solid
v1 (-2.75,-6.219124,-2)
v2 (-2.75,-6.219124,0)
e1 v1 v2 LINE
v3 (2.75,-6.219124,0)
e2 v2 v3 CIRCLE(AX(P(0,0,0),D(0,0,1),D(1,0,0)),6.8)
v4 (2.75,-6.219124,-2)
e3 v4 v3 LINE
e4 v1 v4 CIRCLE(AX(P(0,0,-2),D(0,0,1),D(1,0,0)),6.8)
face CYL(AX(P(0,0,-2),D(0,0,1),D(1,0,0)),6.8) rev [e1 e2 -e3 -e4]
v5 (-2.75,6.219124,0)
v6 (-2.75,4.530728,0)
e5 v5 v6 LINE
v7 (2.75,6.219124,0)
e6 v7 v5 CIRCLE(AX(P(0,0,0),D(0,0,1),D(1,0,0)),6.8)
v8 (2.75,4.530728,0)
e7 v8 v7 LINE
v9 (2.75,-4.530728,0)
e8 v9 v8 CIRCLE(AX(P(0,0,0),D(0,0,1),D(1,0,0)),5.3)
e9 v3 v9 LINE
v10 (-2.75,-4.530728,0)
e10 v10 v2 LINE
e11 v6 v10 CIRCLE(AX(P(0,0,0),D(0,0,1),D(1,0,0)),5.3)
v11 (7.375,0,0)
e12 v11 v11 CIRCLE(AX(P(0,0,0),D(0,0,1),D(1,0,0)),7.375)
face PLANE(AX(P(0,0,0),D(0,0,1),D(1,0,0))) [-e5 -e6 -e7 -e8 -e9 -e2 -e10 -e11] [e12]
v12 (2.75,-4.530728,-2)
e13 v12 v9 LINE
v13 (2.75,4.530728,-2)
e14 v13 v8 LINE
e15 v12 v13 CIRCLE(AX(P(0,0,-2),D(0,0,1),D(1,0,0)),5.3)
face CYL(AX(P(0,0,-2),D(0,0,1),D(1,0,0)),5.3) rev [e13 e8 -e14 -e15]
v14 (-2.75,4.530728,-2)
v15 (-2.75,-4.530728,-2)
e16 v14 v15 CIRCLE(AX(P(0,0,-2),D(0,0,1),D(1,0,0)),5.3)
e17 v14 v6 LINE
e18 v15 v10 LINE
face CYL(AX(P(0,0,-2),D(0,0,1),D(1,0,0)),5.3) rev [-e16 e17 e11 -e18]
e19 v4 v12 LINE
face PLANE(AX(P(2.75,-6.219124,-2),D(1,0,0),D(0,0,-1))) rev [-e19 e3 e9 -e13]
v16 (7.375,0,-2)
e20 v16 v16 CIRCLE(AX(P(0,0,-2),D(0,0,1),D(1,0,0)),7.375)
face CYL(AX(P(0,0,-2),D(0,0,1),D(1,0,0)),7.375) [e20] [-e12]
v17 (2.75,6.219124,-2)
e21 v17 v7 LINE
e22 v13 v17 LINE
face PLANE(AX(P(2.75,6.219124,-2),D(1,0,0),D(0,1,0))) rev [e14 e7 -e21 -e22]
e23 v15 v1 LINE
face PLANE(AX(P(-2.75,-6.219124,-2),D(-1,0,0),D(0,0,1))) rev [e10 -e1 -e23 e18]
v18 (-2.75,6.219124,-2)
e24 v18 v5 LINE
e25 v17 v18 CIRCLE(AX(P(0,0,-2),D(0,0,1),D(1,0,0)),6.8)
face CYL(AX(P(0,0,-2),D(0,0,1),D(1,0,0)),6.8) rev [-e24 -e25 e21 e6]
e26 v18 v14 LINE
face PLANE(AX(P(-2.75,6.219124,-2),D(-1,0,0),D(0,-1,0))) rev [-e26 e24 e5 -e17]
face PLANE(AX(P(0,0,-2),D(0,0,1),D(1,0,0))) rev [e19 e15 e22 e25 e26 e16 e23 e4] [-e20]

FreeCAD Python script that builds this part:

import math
import FreeCAD as App
import Part
import Sketcher

V = App.Vector

doc = App.newDocument("Part")
body = doc.addObject("PartDesign::Body", "Body")

sketch1 = doc.addObject("Sketcher::SketchObject", "Sketch")
body.addObject(sketch1)
sketch1.AttachmentSupport = (doc.XY_Plane, [""])
sketch1.MapMode = "FlatFace"
sketch1.addGeometry([
    Part.Circle(V(0, 0, 0), V(0, 0, 1), 7.4),
    Part.LineSegment(V(-2.8, 4.5, 0), V(-2.8, 6.2, 0)),
    Part.ArcOfCircle(Part.Circle(V(0, 0, 0), V(0, 0, 1), 6.8), math.radians(66), math.radians(114)),
    Part.LineSegment(V(2.8, 6.2, 0), V(2.8, 4.5, 0)),
    Part.ArcOfCircle(Part.Circle(V(0, 0, 0), V(0, 0, 1), 5.3), math.radians(-59), math.radians(59)),
    Part.LineSegment(V(2.8, -4.5, 0), V(2.8, -6.2, 0)),
    Part.ArcOfCircle(Part.Circle(V(0, 0, 0), V(0, 0, 1), 6.8), math.radians(-114), math.radians(-66)),
    Part.LineSegment(V(-2.8, -6.2, 0), V(-2.8, -4.5, 0)),
    Part.ArcOfCircle(Part.Circle(V(0, 0, 0), V(0, 0, 1), 5.3), math.radians(121), math.radians(239)),
], False)
sketch1.addConstraint([
    Sketcher.Constraint("Coincident", 1, 2, 2, 2),
    Sketcher.Constraint("Coincident", 2, 1, 3, 1),
    Sketcher.Constraint("Coincident", 3, 2, 4, 2),
    Sketcher.Constraint("Coincident", 4, 1, 5, 1),
    Sketcher.Constraint("Coincident", 5, 2, 6, 2),
    Sketcher.Constraint("Coincident", 6, 1, 7, 1),
    Sketcher.Constraint("Coincident", 7, 2, 8, 2),
    Sketcher.Constraint("Coincident", 8, 1, 1, 1),
    Sketcher.Constraint("Vertical", 1),
    Sketcher.Constraint("Vertical", 3),
    Sketcher.Constraint("Vertical", 5),
    Sketcher.Constraint("Vertical", 7),
    Sketcher.Constraint("Coincident", 0, 3, -1, 1),
    Sketcher.Constraint("Coincident", 2, 3, -1, 1),
    Sketcher.Constraint("Coincident", 4, 3, -1, 1),
    Sketcher.Constraint("Coincident", 6, 3, -1, 1),
    Sketcher.Constraint("Coincident", 8, 3, -1, 1),
    Sketcher.Constraint("Equal", 2, 6),
    Sketcher.Constraint("Equal", 4, 8),
    Sketcher.Constraint("Horizontal", 1, 2, 2, 1),
    Sketcher.Constraint("Horizontal", 5, 2, 6, 1),
    Sketcher.Constraint("Vertical", 3, 2, 4, 1),
    Sketcher.Constraint("Radius", 2, 6.8),
    Sketcher.Constraint("Radius", 4, 5.3),
    Sketcher.Constraint("Diameter", 0, 14.75),
    Sketcher.Constraint("DistanceX", 1, 2, 2, 1, 5.5),
])
pad1 = doc.addObject("PartDesign::Pad", "Pad")
body.addObject(pad1)
pad1.Profile = sketch1
pad1.Length = 2
pad1.Reversed = True

doc.recompute()
